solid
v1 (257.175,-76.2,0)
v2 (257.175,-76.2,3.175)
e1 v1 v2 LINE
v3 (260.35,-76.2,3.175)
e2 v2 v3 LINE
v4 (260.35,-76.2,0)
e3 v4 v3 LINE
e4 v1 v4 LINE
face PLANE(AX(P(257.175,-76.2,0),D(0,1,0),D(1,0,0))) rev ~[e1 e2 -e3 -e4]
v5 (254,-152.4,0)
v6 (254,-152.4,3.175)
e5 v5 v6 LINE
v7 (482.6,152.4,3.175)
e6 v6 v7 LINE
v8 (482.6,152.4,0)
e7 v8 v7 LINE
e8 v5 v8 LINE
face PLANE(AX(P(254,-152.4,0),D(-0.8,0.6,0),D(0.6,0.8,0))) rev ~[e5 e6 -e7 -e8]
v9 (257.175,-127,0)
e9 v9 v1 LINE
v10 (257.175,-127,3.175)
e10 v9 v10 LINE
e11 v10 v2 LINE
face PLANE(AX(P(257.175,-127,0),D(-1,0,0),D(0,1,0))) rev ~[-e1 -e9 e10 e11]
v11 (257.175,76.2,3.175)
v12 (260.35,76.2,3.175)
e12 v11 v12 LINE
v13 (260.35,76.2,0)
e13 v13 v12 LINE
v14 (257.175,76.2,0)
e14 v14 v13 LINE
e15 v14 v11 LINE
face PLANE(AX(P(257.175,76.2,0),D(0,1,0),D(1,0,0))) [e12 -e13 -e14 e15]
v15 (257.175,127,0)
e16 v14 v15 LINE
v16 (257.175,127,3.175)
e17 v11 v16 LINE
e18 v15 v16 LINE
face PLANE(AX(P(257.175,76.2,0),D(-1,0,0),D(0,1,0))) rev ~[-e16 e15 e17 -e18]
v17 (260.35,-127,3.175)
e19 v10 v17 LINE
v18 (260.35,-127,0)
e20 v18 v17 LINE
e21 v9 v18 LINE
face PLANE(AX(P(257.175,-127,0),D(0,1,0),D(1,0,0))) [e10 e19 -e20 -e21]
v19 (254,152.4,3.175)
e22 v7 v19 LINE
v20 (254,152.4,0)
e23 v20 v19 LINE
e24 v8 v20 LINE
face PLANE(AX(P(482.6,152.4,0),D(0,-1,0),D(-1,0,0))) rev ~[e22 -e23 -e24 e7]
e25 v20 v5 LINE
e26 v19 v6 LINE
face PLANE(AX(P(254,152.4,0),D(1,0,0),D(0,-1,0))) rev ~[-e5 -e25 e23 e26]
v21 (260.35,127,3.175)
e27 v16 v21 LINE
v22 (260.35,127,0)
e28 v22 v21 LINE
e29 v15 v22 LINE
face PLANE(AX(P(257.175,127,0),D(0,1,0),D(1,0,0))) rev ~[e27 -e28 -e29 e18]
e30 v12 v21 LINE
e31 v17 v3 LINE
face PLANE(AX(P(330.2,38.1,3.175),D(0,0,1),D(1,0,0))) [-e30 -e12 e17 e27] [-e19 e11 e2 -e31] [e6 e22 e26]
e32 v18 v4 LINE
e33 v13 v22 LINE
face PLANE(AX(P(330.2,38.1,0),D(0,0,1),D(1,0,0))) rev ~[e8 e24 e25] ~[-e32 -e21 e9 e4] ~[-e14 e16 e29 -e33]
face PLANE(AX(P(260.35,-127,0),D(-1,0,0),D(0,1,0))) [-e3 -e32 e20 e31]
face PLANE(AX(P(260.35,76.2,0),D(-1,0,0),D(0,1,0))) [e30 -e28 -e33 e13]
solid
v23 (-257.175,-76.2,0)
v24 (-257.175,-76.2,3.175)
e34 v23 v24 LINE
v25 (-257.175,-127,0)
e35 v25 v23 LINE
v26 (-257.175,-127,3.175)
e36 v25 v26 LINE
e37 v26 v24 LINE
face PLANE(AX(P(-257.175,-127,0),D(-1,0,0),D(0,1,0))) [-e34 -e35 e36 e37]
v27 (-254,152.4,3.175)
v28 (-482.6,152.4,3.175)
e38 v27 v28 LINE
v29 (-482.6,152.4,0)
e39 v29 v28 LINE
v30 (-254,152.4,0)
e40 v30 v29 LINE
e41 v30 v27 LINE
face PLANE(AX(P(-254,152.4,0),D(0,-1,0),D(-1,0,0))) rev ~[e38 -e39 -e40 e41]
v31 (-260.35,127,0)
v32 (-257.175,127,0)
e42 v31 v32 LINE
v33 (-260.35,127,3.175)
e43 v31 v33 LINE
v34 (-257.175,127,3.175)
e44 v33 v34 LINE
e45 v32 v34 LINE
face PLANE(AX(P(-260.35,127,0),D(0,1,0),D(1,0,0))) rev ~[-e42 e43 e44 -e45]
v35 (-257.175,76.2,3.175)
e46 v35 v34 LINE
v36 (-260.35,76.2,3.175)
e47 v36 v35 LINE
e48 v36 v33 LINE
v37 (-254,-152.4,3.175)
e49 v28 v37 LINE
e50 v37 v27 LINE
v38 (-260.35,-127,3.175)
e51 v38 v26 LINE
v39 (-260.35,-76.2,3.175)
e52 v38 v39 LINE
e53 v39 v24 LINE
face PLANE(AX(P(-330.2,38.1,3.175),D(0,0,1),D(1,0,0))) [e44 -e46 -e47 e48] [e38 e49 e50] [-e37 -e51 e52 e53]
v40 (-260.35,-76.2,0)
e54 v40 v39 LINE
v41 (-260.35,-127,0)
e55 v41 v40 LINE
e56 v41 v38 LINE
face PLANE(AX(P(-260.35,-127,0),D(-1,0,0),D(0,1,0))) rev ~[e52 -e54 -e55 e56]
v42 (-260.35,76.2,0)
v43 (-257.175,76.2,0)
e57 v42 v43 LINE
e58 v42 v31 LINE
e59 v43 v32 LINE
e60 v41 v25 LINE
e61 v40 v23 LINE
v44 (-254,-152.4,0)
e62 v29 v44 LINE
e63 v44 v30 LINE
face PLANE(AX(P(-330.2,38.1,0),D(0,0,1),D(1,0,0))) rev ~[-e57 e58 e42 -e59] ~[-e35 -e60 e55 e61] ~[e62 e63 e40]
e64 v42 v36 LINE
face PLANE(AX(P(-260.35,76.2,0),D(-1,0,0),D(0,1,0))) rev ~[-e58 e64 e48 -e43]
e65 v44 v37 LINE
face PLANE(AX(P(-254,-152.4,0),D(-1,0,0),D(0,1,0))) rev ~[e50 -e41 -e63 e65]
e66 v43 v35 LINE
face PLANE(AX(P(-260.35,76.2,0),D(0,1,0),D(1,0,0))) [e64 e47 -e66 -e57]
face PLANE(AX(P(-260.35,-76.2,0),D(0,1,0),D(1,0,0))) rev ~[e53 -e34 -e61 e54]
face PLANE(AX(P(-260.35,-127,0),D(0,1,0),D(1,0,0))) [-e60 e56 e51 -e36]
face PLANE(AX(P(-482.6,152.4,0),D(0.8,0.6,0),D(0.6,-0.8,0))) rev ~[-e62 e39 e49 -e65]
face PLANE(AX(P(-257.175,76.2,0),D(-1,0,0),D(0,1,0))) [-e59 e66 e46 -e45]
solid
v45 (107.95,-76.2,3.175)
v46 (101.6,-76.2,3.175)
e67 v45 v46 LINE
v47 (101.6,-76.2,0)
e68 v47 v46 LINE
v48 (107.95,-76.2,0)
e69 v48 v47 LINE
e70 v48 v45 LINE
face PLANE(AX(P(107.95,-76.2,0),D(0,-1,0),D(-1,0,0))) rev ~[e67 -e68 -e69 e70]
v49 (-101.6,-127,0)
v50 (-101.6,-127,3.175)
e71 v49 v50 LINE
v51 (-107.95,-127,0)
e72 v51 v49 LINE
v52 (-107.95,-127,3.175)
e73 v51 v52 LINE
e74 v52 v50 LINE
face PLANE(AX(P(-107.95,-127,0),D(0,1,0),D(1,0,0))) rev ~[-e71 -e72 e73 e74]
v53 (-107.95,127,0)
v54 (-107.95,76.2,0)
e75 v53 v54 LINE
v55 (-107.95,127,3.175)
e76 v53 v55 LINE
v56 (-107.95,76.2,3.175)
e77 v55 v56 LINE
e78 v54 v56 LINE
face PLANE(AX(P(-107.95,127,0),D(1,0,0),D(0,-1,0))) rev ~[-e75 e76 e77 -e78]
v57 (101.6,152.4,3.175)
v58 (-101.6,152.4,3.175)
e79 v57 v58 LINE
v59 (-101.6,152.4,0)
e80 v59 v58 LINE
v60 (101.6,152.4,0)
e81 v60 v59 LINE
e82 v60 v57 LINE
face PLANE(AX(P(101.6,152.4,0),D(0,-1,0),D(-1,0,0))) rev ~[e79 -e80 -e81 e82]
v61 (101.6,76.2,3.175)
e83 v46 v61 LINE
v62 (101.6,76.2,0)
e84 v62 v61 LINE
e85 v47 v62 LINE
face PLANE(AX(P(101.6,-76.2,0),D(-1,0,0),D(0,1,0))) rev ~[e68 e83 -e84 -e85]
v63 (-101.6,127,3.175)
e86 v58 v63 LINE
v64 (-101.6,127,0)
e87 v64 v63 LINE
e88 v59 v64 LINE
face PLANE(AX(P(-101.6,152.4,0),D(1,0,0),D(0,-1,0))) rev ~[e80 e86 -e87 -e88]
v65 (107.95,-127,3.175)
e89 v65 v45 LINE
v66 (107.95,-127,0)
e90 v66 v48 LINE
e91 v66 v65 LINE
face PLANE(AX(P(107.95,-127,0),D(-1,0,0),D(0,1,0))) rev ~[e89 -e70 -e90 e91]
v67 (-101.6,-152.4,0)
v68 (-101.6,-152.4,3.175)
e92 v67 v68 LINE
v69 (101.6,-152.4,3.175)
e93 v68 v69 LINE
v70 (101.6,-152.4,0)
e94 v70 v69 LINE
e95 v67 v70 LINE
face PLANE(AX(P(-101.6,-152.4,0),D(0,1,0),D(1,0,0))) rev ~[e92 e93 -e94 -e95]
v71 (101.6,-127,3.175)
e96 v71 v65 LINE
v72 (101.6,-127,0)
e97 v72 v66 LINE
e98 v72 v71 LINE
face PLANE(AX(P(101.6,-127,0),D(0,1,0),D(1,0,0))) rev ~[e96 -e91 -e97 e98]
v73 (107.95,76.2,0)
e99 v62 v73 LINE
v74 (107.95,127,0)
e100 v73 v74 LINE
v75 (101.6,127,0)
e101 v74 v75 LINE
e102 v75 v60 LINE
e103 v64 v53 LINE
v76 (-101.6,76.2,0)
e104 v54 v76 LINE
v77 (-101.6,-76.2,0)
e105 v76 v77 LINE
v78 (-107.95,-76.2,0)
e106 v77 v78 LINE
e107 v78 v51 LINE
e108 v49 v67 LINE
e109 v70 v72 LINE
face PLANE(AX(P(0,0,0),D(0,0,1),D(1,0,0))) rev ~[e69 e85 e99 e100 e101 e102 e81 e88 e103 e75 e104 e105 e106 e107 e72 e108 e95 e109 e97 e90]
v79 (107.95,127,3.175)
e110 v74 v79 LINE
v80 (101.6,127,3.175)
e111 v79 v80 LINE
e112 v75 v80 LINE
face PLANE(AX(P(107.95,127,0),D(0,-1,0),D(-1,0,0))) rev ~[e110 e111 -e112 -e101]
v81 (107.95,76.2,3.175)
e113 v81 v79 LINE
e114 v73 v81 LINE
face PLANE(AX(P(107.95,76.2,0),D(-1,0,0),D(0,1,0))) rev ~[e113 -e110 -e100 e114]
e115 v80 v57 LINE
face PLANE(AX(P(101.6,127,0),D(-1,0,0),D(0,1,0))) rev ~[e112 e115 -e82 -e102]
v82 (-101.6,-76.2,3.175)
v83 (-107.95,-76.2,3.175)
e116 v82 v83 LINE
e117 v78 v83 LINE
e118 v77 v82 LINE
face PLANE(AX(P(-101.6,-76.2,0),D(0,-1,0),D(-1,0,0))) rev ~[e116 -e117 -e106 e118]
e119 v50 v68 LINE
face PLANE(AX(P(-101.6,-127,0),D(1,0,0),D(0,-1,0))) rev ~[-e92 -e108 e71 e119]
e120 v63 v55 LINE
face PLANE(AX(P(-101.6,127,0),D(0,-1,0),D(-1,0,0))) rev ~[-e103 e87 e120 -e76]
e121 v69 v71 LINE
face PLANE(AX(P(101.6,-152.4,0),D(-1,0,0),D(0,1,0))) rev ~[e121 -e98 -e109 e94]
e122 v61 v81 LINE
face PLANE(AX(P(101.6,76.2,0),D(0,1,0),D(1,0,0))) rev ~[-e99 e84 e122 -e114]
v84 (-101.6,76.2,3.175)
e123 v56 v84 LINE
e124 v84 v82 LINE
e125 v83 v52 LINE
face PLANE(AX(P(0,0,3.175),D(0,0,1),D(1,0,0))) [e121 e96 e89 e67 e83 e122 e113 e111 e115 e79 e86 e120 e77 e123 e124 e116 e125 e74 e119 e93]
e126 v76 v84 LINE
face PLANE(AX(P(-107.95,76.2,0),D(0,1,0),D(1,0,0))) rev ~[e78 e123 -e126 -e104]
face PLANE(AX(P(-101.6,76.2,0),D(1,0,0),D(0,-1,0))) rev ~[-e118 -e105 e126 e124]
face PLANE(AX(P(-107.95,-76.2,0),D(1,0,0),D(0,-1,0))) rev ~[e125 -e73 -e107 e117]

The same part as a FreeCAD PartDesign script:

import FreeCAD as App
import Part
import Sketcher
Q = App.Units.Quantity

doc = App.newDocument("Part")
body = doc.addObject("PartDesign::Body", "Body")
body.AllowCompound = True

# Sketch on XY plane
sketch1 = body.newObject("Sketcher::SketchObject", "Sketch")
sketch1.AttachmentSupport = (doc.getObject("XY_Plane"), [""])
sketch1.MapMode = "FlatFace"
sketch1.addGeometry([
    Part.LineSegment(App.Vector(101.6, 152.4, 0), App.Vector(-101.6, 152.4, 0)),  # 0
    Part.LineSegment(App.Vector(-101.6, 152.4, 0), App.Vector(-101.6, 127, 0)),  # 1
    Part.LineSegment(App.Vector(-101.6, 127, 0), App.Vector(-108, 127, 0)),  # 2
    Part.LineSegment(App.Vector(-108, 127, 0), App.Vector(-108, 76.2, 0)),  # 3
    Part.LineSegment(App.Vector(-108, 76.2, 0), App.Vector(-101.6, 76.2, 0)),  # 4
    Part.LineSegment(App.Vector(-101.6, 76.2, 0), App.Vector(-101.6, -76.2, 0)),  # 5
    Part.LineSegment(App.Vector(-101.6, -76.2, 0), App.Vector(-108, -76.2, 0)),  # 6
    Part.LineSegment(App.Vector(-108, -76.2, 0), App.Vector(-108, -127, 0)),  # 7
    Part.LineSegment(App.Vector(-108, -127, 0), App.Vector(-101.6, -127, 0)),  # 8
    Part.LineSegment(App.Vector(-101.6, -127, 0), App.Vector(-101.6, -152.4, 0)),  # 9
    Part.LineSegment(App.Vector(-101.6, -152.4, 0), App.Vector(101.6, -152.4, 0)),  # 10
    Part.LineSegment(App.Vector(101.6, -152.4, 0), App.Vector(101.6, -127, 0)),  # 11
    Part.LineSegment(App.Vector(101.6, -127, 0), App.Vector(108, -127, 0)),  # 12
    Part.LineSegment(App.Vector(108, -127, 0), App.Vector(108, -76.2, 0)),  # 13
    Part.LineSegment(App.Vector(108, -76.2, 0), App.Vector(101.6, -76.2, 0)),  # 14
    Part.LineSegment(App.Vector(101.6, -76.2, 0), App.Vector(101.6, 76.2, 0)),  # 15
    Part.LineSegment(App.Vector(101.6, 76.2, 0), App.Vector(108, 76.2, 0)),  # 16
    Part.LineSegment(App.Vector(108, 76.2, 0), App.Vector(108, 127, 0)),  # 17
    Part.LineSegment(App.Vector(108, 127, 0), App.Vector(101.6, 127, 0)),  # 18
    Part.LineSegment(App.Vector(101.6, 127, 0), App.Vector(101.6, 152.4, 0)),  # 19
    Part.LineSegment(App.Vector(-482.6, 152.4, 0), App.Vector(-254, -152.4, 0)),  # 20
    Part.LineSegment(App.Vector(-254, -152.4, 0), App.Vector(-254, 152.4, 0)),  # 21
    Part.LineSegment(App.Vector(-254, 152.4, 0), App.Vector(-482.6, 152.4, 0)),  # 22
    Part.LineSegment(App.Vector(-257.2, -127, 0), App.Vector(-260.4, -127, 0)),  # 23
    Part.LineSegment(App.Vector(-260.4, -127, 0), App.Vector(-260.4, -76.2, 0)),  # 24
    Part.LineSegment(App.Vector(-260.4, -76.2, 0), App.Vector(-257.2, -76.2, 0)),  # 25
    Part.LineSegment(App.Vector(-257.2, -76.2, 0), App.Vector(-257.2, -127, 0)),  # 26
    Part.LineSegment(App.Vector(-257.2, 76.2, 0), App.Vector(-260.4, 76.2, 0)),  # 27
    Part.LineSegment(App.Vector(-260.4, 76.2, 0), App.Vector(-260.4, 127, 0)),  # 28
    Part.LineSegment(App.Vector(-260.4, 127, 0), App.Vector(-257.2, 127, 0)),  # 29
    Part.LineSegment(App.Vector(-257.2, 127, 0), App.Vector(-257.2, 76.2, 0)),  # 30
    Part.LineSegment(App.Vector(254, 152.4, 0), App.Vector(254, -152.4, 0)),  # 31
    Part.LineSegment(App.Vector(254, -152.4, 0), App.Vector(482.6, 152.4, 0)),  # 32
    Part.LineSegment(App.Vector(482.6, 152.4, 0), App.Vector(254, 152.4, 0)),  # 33
    Part.LineSegment(App.Vector(260.4, -127, 0), App.Vector(257.2, -127, 0)),  # 34
    Part.LineSegment(App.Vector(257.2, -127, 0), App.Vector(257.2, -76.2, 0)),  # 35
    Part.LineSegment(App.Vector(257.2, -76.2, 0), App.Vector(260.4, -76.2, 0)),  # 36
    Part.LineSegment(App.Vector(260.4, -76.2, 0), App.Vector(260.4, -127, 0)),  # 37
    Part.LineSegment(App.Vector(260.4, 76.2, 0), App.Vector(257.2, 76.2, 0)),  # 38
    Part.LineSegment(App.Vector(257.2, 76.2, 0), App.Vector(257.2, 127, 0)),  # 39
    Part.LineSegment(App.Vector(257.2, 127, 0), App.Vector(260.4, 127, 0)),  # 40
    Part.LineSegment(App.Vector(260.4, 127, 0), App.Vector(260.4, 76.2, 0)),  # 41
], False)
sketch1.addConstraint([
    Sketcher.Constraint("Coincident", 0, 2, 1, 1),
    Sketcher.Constraint("Coincident", 1, 2, 2, 1),
    Sketcher.Constraint("Coincident", 2, 2, 3, 1),
    Sketcher.Constraint("Coincident", 3, 2, 4, 1),
    Sketcher.Constraint("Coincident", 4, 2, 5, 1),
    Sketcher.Constraint("Coincident", 5, 2, 6, 1),
    Sketcher.Constraint("Coincident", 6, 2, 7, 1),
    Sketcher.Constraint("Coincident", 7, 2, 8, 1),
    Sketcher.Constraint("Coincident", 8, 2, 9, 1),
    Sketcher.Constraint("Coincident", 9, 2, 10, 1),
    Sketcher.Constraint("Coincident", 10, 2, 11, 1),
    Sketcher.Constraint("Coincident", 11, 2, 12, 1),
    Sketcher.Constraint("Coincident", 12, 2, 13, 1),
    Sketcher.Constraint("Coincident", 13, 2, 14, 1),
    Sketcher.Constraint("Coincident", 14, 2, 15, 1),
    Sketcher.Constraint("Coincident", 15, 2, 16, 1),
    Sketcher.Constraint("Coincident", 16, 2, 17, 1),
    Sketcher.Constraint("Coincident", 17, 2, 18, 1),
    Sketcher.Constraint("Coincident", 18, 2, 19, 1),
    Sketcher.Constraint("Coincident", 19, 2, 0, 1),
    Sketcher.Constraint("Coincident", 20, 2, 21, 1),
    Sketcher.Constraint("Coincident", 21, 2, 22, 1),
    Sketcher.Constraint("Coincident", 22, 2, 20, 1),
    Sketcher.Constraint("Coincident", 23, 2, 24, 1),
    Sketcher.Constraint("Coincident", 24, 2, 25, 1),
    Sketcher.Constraint("Coincident", 25, 2, 26, 1),
    Sketcher.Constraint("Coincident", 26, 2, 23, 1),
    Sketcher.Constraint("Coincident", 27, 2, 28, 1),
    Sketcher.Constraint("Coincident", 28, 2, 29, 1),
    Sketcher.Constraint("Coincident", 29, 2, 30, 1),
    Sketcher.Constraint("Coincident", 30, 2, 27, 1),
    Sketcher.Constraint("Coincident", 31, 2, 32, 1),
    Sketcher.Constraint("Coincident", 32, 2, 33, 1),
    Sketcher.Constraint("Coincident", 33, 2, 31, 1),
    Sketcher.Constraint("Coincident", 34, 2, 35, 1),
    Sketcher.Constraint("Coincident", 35, 2, 36, 1),
    Sketcher.Constraint("Coincident", 36, 2, 37, 1),
    Sketcher.Constraint("Coincident", 37, 2, 34, 1),
    Sketcher.Constraint("Coincident", 38, 2, 39, 1),
    Sketcher.Constraint("Coincident", 39, 2, 40, 1),
    Sketcher.Constraint("Coincident", 40, 2, 41, 1),
    Sketcher.Constraint("Coincident", 41, 2, 38, 1),
    Sketcher.Constraint("Horizontal", 0),
    Sketcher.Constraint("Vertical", 1),
    Sketcher.Constraint("Horizontal", 2),
    Sketcher.Constraint("Vertical", 3),
    Sketcher.Constraint("Horizontal", 4),
    Sketcher.Constraint("Vertical", 5),
    Sketcher.Constraint("Horizontal", 6),
    Sketcher.Constraint("Vertical", 7),
    Sketcher.Constraint("Horizontal", 8),
    Sketcher.Constraint("Vertical", 9),
    Sketcher.Constraint("Horizontal", 10),
    Sketcher.Constraint("Vertical", 11),
    Sketcher.Constraint("Horizontal", 12),
    Sketcher.Constraint("Vertical", 13),
    Sketcher.Constraint("Horizontal", 14),
    Sketcher.Constraint("Vertical", 15),
    Sketcher.Constraint("Horizontal", 16),
    Sketcher.Constraint("Vertical", 17),
    Sketcher.Constraint("Horizontal", 18),
    Sketcher.Constraint("Vertical", 19),
    Sketcher.Constraint("Vertical", 21),
    Sketcher.Constraint("Horizontal", 22),
    Sketcher.Constraint("Horizontal", 23),
    Sketcher.Constraint("Vertical", 24),
    Sketcher.Constraint("Horizontal", 25),
    Sketcher.Constraint("Vertical", 26),
    Sketcher.Constraint("Horizontal", 27),
    Sketcher.Constraint("Vertical", 28),
    Sketcher.Constraint("Horizontal", 29),
    Sketcher.Constraint("Vertical", 30),
    Sketcher.Constraint("Vertical", 31),
    Sketcher.Constraint("Horizontal", 33),
    Sketcher.Constraint("Horizontal", 34),
    Sketcher.Constraint("Vertical", 35),
    Sketcher.Constraint("Horizontal", 36),
    Sketcher.Constraint("Vertical", 37),
    Sketcher.Constraint("Horizontal", 38),
    Sketcher.Constraint("Vertical", 39),
    Sketcher.Constraint("Horizontal", 40),
    Sketcher.Constraint("Vertical", 41),
    Sketcher.Constraint("Symmetric", 0, 2, 10, 2, -1, 1),
    Sketcher.Constraint("Symmetric", 2, 2, 12, 2, -1, 1),
    Sketcher.Constraint("Symmetric", 4, 2, 14, 2, -1, 1),
    Sketcher.Constraint("Symmetric", 6, 2, 16, 2, -1, 1),
    Sketcher.Constraint("Symmetric", 8, 2, 18, 2, -1, 1),
    Sketcher.Constraint("Symmetric", 21, 2, 31, 2, -1, 1),
    Sketcher.Constraint("Symmetric", 29, 2, 34, 2, -1, 1),
    Sketcher.Constraint("Symmetric", 27, 2, 36, 2, -1, 1),
    Sketcher.Constraint("Symmetric", 25, 2, 38, 2, -1, 1),
    Sketcher.Constraint("Symmetric", 23, 2, 40, 2, -1, 1),
    Sketcher.Constraint("Symmetric", 8, 2, 11, 2, -2),
    Sketcher.Constraint("Symmetric", 6, 2, 13, 2, -2),
    Sketcher.Constraint("Symmetric", 22, 2, 32, 2, -2),
    Sketcher.Constraint("Symmetric", 26, 2, 34, 2, -2),
    Sketcher.Constraint("Symmetric", 24, 2, 36, 2, -2),
    Sketcher.Constraint("Horizontal", 10, 2, 20, 2),
    Sketcher.Constraint("Horizontal", 19, 2, 21, 2),
    Sketcher.Constraint("Horizontal", 12, 2, 23, 2),
    Sketcher.Constraint("Horizontal", 14, 2, 24, 2),
    Sketcher.Constraint("Vertical", 1, 2, 4, 2),
    Sketcher.Constraint("DistanceX", 0, 2, 0, 1, Q("8 in")),
    Sketcher.Constraint("DistanceX", 22, 2, 22, 1, Q("9 in")),
    Sketcher.Constraint("DistanceY", 1, 2, 1, 1, Q("1 in")),
    Sketcher.Constraint("DistanceY", 3, 2, 3, 1, Q("2 in")),
    Sketcher.Constraint("DistanceY", 5, 2, 5, 1, Q("6 in")),
    Sketcher.Constraint("DistanceX", 20, 2, -1, 1, Q("10 in")),
    Sketcher.Constraint("DistanceX", 23, 2, 7, 2, Q("6 in")),
    Sketcher.Constraint("DistanceX", 2, 2, 2, 1, Q("0.25 in")),
    Sketcher.Constraint("DistanceX", 23, 2, 23, 1, Q("0.125 in")),
])
pad1 = body.newObject("PartDesign::Pad", "Pad")
pad1.Profile = sketch1
pad1.Length = Q("0.125 in")

doc.recompute()
